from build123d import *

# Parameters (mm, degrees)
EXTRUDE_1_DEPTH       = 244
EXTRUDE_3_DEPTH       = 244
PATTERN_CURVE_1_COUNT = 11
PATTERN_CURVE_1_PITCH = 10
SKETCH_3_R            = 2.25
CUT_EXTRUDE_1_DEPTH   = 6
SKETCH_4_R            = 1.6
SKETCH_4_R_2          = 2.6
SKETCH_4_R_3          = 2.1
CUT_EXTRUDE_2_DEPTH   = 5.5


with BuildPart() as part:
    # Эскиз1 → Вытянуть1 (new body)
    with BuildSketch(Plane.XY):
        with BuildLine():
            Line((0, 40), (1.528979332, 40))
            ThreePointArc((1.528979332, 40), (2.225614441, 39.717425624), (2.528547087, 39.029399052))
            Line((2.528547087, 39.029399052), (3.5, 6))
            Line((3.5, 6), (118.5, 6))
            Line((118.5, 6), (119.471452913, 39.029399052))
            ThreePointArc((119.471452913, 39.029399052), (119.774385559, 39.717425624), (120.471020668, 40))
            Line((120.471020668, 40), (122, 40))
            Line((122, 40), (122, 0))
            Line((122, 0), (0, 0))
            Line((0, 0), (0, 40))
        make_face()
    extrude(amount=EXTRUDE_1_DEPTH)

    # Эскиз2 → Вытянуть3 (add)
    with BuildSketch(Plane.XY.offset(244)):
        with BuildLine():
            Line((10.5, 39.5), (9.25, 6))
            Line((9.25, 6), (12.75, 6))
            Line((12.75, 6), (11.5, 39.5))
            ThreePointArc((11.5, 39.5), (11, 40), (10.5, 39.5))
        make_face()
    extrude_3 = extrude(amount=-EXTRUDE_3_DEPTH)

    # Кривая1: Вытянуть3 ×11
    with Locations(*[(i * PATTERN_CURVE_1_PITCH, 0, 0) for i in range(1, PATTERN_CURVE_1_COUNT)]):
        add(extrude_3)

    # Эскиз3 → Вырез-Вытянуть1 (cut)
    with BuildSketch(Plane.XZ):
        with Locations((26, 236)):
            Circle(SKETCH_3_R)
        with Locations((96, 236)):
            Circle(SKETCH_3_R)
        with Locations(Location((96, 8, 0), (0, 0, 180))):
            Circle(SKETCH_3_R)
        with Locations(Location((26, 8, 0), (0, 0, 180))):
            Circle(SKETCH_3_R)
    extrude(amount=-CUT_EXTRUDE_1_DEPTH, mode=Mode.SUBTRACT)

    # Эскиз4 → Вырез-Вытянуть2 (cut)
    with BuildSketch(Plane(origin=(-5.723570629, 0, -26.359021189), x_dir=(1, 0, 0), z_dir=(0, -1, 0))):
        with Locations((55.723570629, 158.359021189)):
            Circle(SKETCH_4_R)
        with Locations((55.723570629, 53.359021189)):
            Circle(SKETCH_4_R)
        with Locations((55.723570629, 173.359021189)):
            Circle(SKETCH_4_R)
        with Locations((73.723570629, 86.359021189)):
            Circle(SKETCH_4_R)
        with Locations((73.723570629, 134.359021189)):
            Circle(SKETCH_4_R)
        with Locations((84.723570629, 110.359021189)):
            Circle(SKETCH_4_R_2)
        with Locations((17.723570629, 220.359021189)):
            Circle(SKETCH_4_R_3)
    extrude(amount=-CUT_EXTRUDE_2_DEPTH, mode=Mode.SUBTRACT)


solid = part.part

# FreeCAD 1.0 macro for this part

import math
import FreeCAD as App
import Part
import Sketcher

V = App.Vector

doc = App.newDocument("Part")
body = doc.addObject("PartDesign::Body", "Body")

# Sketch on XY plane
sketch1 = body.newObject("Sketcher::SketchObject", "Sketch")
sketch1.AttachmentSupport = (doc.getObject("XY_Plane"), [""])
sketch1.MapMode = "FlatFace"
sketch1.addGeometry(Part.LineSegment(V(1.5, 40, 0), V(0, 40, 0)), False)
sketch1.addGeometry(Part.LineSegment(V(0, 40, 0), V(0, 0, 0)), False)
sketch1.addGeometry(Part.LineSegment(V(0, 0, 0), V(122, 0, 0)), False)
sketch1.addGeometry(Part.LineSegment(V(122, 0, 0), V(122, 40, 0)), False)
sketch1.addGeometry(Part.LineSegment(V(122, 40, 0), V(120.5, 40, 0)), False)
sketch1.addGeometry(Part.ArcOfCircle(Part.Circle(V(120.5, 39, 0), V(0, 0, 1), 1), math.radians(90), math.radians(178)), False)
sketch1.addGeometry(Part.LineSegment(V(119.5, 39, 0), V(118.5, 6, 0)), False)
sketch1.addGeometry(Part.LineSegment(V(118.5, 6, 0), V(3.5, 6, 0)), False)
sketch1.addGeometry(Part.LineSegment(V(3.5, 6, 0), V(2.5, 39, 0)), False)
sketch1.addGeometry(Part.ArcOfCircle(Part.Circle(V(1.5, 39, 0), V(0, 0, 1), 1), math.radians(2), math.radians(90)), False)
sketch1.addConstraint(Sketcher.Constraint("Coincident", 0, 2, 1, 1))
sketch1.addConstraint(Sketcher.Constraint("Coincident", 1, 2, 2, 1))
sketch1.addConstraint(Sketcher.Constraint("Coincident", 2, 2, 3, 1))
sketch1.addConstraint(Sketcher.Constraint("Coincident", 3, 2, 4, 1))
sketch1.addConstraint(Sketcher.Constraint("Tangent", 4, 2, 5, 1))
sketch1.addConstraint(Sketcher.Constraint("Tangent", 5, 2, 6, 1))
sketch1.addConstraint(Sketcher.Constraint("Coincident", 6, 2, 7, 1))
sketch1.addConstraint(Sketcher.Constraint("Coincident", 7, 2, 8, 1))
sketch1.addConstraint(Sketcher.Constraint("Tangent", 8, 2, 9, 1))
sketch1.addConstraint(Sketcher.Constraint("Tangent", 9, 2, 0, 1))
sketch1.addConstraint(Sketcher.Constraint("Horizontal", 0))
sketch1.addConstraint(Sketcher.Constraint("Vertical", 1))
sketch1.addConstraint(Sketcher.Constraint("Horizontal", 2))
sketch1.addConstraint(Sketcher.Constraint("Vertical", 3))
sketch1.addConstraint(Sketcher.Constraint("Horizontal", 4))
sketch1.addConstraint(Sketcher.Constraint("Horizontal", 7))
sketch1.addConstraint(Sketcher.Constraint("Coincident", 1, 2, -1, 1))
sketch1.addConstraint(Sketcher.Constraint("Equal", 5, 9))
sketch1.addConstraint(Sketcher.Constraint("Horizontal", 5, 3, 9, 3))
sketch1.addConstraint(Sketcher.Constraint("Horizontal", 5, 2, 8, 2))
sketch1.addConstraint(Sketcher.Constraint("Equal", 0, 4))
sketch1.addConstraint(Sketcher.Constraint("Radius", 5, 1.0))
sketch1.addConstraint(Sketcher.Constraint("DistanceX", 2, 1, 2, 2, 122.0))
sketch1.addConstraint(Sketcher.Constraint("DistanceX", 7, 2, 7, 1, 115.0))
sketch1.addConstraint(Sketcher.Constraint("DistanceY", 1, 2, 1, 1, 40.0))
sketch1.addConstraint(Sketcher.Constraint("DistanceY", -1, 1, 6, 2, 6.0))
sketch1.addConstraint(Sketcher.Constraint("DistanceX", 0, 2, 0, 1, 1.528979))
pad1 = body.newObject("PartDesign::Pad", "Pad")
pad1.Profile = sketch1
pad1.Length = 244

# Sketch on XY plane
sketch2 = body.newObject("Sketcher::SketchObject", "Sketch001")
sketch2.AttachmentSupport = (doc.getObject("XY_Plane"), [""])
sketch2.MapMode = "FlatFace"
sketch2.AttachmentOffset = App.Placement(V(0, 0, 244), App.Rotation())
sketch2.addGeometry(Part.LineSegment(V(10.5, 39.5, 0), V(9.2, 6, 0)), False)
sketch2.addGeometry(Part.LineSegment(V(9.2, 6, 0), V(12.8, 6, 0)), False)
sketch2.addGeometry(Part.LineSegment(V(12.8, 6, 0), V(11.5, 39.5, 0)), False)
sketch2.addGeometry(Part.ArcOfCircle(Part.Circle(V(11, 39.5, 0), V(0, 0, 1), 0.5), math.radians(0), math.radians(180)), False)
sketch2.addConstraint(Sketcher.Constraint("Coincident", 0, 2, 1, 1))
sketch2.addConstraint(Sketcher.Constraint("Coincident", 1, 2, 2, 1))
sketch2.addConstraint(Sketcher.Constraint("Coincident", 2, 2, 3, 1))
sketch2.addConstraint(Sketcher.Constraint("Coincident", 3, 2, 0, 1))
sketch2.addConstraint(Sketcher.Constraint("Horizontal", 1))
sketch2.addConstraint(Sketcher.Constraint("Horizontal", 3, 3, 2, 2))
sketch2.addConstraint(Sketcher.Constraint("Horizontal", 2, 2, 3, 2))
sketch2.addConstraint(Sketcher.Constraint("Equal", 0, 2))
sketch2.addConstraint(Sketcher.Constraint("Radius", 3, 0.5))
sketch2.addConstraint(Sketcher.Constraint("DistanceX", 1, 1, 1, 2, 3.5))
sketch2.addConstraint(Sketcher.Constraint("DistanceX", -1, 1, 3, 3, 11.0))
sketch2.addConstraint(Sketcher.Constraint("DistanceY", -1, 1, 0, 2, 6.0))
sketch2.addConstraint(Sketcher.Constraint("DistanceY", -1, 1, 3, 3, 39.5))
pad2 = body.newObject("PartDesign::Pad", "Pad001")
pad2.Profile = sketch2
pad2.Length = 244
pad2.Reversed = True
doc.recompute()

linearpattern = body.newObject("PartDesign::LinearPattern", "LinearPattern")
linearpattern.Originals = [pad2]
linearpattern.Direction = (doc.getObject("X_Axis"), [""])
linearpattern.Mode = "offset"
linearpattern.Offset = 10
linearpattern.Occurrences = 11
body.Tip = linearpattern

# Sketch on XZ plane
sketch3 = body.newObject("Sketcher::SketchObject", "Sketch002")
sketch3.AttachmentSupport = (doc.getObject("XZ_Plane"), [""])
sketch3.MapMode = "FlatFace"
sketch3.addGeometry(Part.Circle(V(26, 236, 0), V(0, 0, 1), 2.2), False)
sketch3.addGeometry(Part.Circle(V(96, 236, 0), V(0, 0, 1), 2.2), False)
sketch3.addGeometry(Part.Circle(V(96, 8, 0), V(0, 0, 1), 2.2), False)
sketch3.addGeometry(Part.Circle(V(26, 8, 0), V(0, 0, 1), 2.2), False)
sketch3.addConstraint(Sketcher.Constraint("Equal", 0, 1))
sketch3.addConstraint(Sketcher.Constraint("Equal", 1, 2))
sketch3.addConstraint(Sketcher.Constraint("Equal", 2, 3))
sketch3.addConstraint(Sketcher.Constraint("Horizontal", 0, 3, 1, 3))
sketch3.addConstraint(Sketcher.Constraint("Horizontal", 2, 3, 3, 3))
sketch3.addConstraint(Sketcher.Constraint("Vertical", 1, 3, 2, 3))
sketch3.addConstraint(Sketcher.Constraint("Vertical", 0, 3, 3, 3))
sketch3.addConstraint(Sketcher.Constraint("Diameter", 0, 4.5))
sketch3.addConstraint(Sketcher.Constraint("DistanceX", -1, 1, 0, 3, 26.0))
sketch3.addConstraint(Sketcher.Constraint("DistanceY", -1, 1, 0, 3, 236.0))
sketch3.addConstraint(Sketcher.Constraint("DistanceX", -1, 1, 1, 3, 96.0))
sketch3.addConstraint(Sketcher.Constraint("DistanceY", -1, 1, 2, 3, 8.0))
pocket1 = body.newObject("PartDesign::Pocket", "Pocket")
pocket1.Profile = sketch3
pocket1.Length = 6

# Sketch on XZ plane
sketch4 = body.newObject("Sketcher::SketchObject", "Sketch003")
sketch4.AttachmentSupport = (doc.getObject("XZ_Plane"), [""])
sketch4.MapMode = "FlatFace"
sketch4.addGeometry(Part.Circle(V(50, 132, 0), V(0, 0, 1), 1.6), False)
sketch4.addGeometry(Part.Circle(V(50, 27, 0), V(0, 0, 1), 1.6), False)
sketch4.addGeometry(Part.Circle(V(50, 147, 0), V(0, 0, 1), 1.6), False)
sketch4.addGeometry(Part.Circle(V(68, 60, 0), V(0, 0, 1), 1.6), False)
sketch4.addGeometry(Part.Circle(V(68, 108, 0), V(0, 0, 1), 1.6), False)
sketch4.addGeometry(Part.Circle(V(79, 84, 0), V(0, 0, 1), 2.6), False)
sketch4.addGeometry(Part.Circle(V(12, 194, 0), V(0, 0, 1), 2.1), False)
sketch4.addConstraint(Sketcher.Constraint("Equal", 0, 1))
sketch4.addConstraint(Sketcher.Constraint("Equal", 1, 2))
sketch4.addConstraint(Sketcher.Constraint("Equal", 2, 3))
sketch4.addConstraint(Sketcher.Constraint("Equal", 3, 4))
sketch4.addConstraint(Sketcher.Constraint("Vertical", 0, 3, 1, 3))
sketch4.addConstraint(Sketcher.Constraint("Vertical", 1, 3, 2, 3))
sketch4.addConstraint(Sketcher.Constraint("Vertical", 3, 3, 4, 3))
sketch4.addConstraint(Sketcher.Constraint("Diameter", 0, 3.2))
sketch4.addConstraint(Sketcher.Constraint("Diameter", 5, 5.2))
sketch4.addConstraint(Sketcher.Constraint("Diameter", 6, 4.2))
sketch4.addConstraint(Sketcher.Constraint("DistanceX", -1, 1, 0, 3, 50.0))
sketch4.addConstraint(Sketcher.Constraint("DistanceY", -1, 1, 0, 3, 132.0))
sketch4.addConstraint(Sketcher.Constraint("DistanceY", -1, 1, 1, 3, 27.0))
sketch4.addConstraint(Sketcher.Constraint("DistanceY", -1, 1, 2, 3, 147.0))
sketch4.addConstraint(Sketcher.Constraint("DistanceX", -1, 1, 3, 3, 68.0))
sketch4.addConstraint(Sketcher.Constraint("DistanceY", -1, 1, 3, 3, 60.0))
sketch4.addConstraint(Sketcher.Constraint("DistanceY", -1, 1, 4, 3, 108.0))
sketch4.addConstraint(Sketcher.Constraint("DistanceX", -1, 1, 5, 3, 79.0))
sketch4.addConstraint(Sketcher.Constraint("DistanceY", -1, 1, 5, 3, 84.0))
sketch4.addConstraint(Sketcher.Constraint("DistanceX", -1, 1, 6, 3, 12.0))
sketch4.addConstraint(Sketcher.Constraint("DistanceY", -1, 1, 6, 3, 194.0))
pocket2 = body.newObject("PartDesign::Pocket", "Pocket001")
pocket2.Profile = sketch4
pocket2.Length = 5.5

doc.recompute()
